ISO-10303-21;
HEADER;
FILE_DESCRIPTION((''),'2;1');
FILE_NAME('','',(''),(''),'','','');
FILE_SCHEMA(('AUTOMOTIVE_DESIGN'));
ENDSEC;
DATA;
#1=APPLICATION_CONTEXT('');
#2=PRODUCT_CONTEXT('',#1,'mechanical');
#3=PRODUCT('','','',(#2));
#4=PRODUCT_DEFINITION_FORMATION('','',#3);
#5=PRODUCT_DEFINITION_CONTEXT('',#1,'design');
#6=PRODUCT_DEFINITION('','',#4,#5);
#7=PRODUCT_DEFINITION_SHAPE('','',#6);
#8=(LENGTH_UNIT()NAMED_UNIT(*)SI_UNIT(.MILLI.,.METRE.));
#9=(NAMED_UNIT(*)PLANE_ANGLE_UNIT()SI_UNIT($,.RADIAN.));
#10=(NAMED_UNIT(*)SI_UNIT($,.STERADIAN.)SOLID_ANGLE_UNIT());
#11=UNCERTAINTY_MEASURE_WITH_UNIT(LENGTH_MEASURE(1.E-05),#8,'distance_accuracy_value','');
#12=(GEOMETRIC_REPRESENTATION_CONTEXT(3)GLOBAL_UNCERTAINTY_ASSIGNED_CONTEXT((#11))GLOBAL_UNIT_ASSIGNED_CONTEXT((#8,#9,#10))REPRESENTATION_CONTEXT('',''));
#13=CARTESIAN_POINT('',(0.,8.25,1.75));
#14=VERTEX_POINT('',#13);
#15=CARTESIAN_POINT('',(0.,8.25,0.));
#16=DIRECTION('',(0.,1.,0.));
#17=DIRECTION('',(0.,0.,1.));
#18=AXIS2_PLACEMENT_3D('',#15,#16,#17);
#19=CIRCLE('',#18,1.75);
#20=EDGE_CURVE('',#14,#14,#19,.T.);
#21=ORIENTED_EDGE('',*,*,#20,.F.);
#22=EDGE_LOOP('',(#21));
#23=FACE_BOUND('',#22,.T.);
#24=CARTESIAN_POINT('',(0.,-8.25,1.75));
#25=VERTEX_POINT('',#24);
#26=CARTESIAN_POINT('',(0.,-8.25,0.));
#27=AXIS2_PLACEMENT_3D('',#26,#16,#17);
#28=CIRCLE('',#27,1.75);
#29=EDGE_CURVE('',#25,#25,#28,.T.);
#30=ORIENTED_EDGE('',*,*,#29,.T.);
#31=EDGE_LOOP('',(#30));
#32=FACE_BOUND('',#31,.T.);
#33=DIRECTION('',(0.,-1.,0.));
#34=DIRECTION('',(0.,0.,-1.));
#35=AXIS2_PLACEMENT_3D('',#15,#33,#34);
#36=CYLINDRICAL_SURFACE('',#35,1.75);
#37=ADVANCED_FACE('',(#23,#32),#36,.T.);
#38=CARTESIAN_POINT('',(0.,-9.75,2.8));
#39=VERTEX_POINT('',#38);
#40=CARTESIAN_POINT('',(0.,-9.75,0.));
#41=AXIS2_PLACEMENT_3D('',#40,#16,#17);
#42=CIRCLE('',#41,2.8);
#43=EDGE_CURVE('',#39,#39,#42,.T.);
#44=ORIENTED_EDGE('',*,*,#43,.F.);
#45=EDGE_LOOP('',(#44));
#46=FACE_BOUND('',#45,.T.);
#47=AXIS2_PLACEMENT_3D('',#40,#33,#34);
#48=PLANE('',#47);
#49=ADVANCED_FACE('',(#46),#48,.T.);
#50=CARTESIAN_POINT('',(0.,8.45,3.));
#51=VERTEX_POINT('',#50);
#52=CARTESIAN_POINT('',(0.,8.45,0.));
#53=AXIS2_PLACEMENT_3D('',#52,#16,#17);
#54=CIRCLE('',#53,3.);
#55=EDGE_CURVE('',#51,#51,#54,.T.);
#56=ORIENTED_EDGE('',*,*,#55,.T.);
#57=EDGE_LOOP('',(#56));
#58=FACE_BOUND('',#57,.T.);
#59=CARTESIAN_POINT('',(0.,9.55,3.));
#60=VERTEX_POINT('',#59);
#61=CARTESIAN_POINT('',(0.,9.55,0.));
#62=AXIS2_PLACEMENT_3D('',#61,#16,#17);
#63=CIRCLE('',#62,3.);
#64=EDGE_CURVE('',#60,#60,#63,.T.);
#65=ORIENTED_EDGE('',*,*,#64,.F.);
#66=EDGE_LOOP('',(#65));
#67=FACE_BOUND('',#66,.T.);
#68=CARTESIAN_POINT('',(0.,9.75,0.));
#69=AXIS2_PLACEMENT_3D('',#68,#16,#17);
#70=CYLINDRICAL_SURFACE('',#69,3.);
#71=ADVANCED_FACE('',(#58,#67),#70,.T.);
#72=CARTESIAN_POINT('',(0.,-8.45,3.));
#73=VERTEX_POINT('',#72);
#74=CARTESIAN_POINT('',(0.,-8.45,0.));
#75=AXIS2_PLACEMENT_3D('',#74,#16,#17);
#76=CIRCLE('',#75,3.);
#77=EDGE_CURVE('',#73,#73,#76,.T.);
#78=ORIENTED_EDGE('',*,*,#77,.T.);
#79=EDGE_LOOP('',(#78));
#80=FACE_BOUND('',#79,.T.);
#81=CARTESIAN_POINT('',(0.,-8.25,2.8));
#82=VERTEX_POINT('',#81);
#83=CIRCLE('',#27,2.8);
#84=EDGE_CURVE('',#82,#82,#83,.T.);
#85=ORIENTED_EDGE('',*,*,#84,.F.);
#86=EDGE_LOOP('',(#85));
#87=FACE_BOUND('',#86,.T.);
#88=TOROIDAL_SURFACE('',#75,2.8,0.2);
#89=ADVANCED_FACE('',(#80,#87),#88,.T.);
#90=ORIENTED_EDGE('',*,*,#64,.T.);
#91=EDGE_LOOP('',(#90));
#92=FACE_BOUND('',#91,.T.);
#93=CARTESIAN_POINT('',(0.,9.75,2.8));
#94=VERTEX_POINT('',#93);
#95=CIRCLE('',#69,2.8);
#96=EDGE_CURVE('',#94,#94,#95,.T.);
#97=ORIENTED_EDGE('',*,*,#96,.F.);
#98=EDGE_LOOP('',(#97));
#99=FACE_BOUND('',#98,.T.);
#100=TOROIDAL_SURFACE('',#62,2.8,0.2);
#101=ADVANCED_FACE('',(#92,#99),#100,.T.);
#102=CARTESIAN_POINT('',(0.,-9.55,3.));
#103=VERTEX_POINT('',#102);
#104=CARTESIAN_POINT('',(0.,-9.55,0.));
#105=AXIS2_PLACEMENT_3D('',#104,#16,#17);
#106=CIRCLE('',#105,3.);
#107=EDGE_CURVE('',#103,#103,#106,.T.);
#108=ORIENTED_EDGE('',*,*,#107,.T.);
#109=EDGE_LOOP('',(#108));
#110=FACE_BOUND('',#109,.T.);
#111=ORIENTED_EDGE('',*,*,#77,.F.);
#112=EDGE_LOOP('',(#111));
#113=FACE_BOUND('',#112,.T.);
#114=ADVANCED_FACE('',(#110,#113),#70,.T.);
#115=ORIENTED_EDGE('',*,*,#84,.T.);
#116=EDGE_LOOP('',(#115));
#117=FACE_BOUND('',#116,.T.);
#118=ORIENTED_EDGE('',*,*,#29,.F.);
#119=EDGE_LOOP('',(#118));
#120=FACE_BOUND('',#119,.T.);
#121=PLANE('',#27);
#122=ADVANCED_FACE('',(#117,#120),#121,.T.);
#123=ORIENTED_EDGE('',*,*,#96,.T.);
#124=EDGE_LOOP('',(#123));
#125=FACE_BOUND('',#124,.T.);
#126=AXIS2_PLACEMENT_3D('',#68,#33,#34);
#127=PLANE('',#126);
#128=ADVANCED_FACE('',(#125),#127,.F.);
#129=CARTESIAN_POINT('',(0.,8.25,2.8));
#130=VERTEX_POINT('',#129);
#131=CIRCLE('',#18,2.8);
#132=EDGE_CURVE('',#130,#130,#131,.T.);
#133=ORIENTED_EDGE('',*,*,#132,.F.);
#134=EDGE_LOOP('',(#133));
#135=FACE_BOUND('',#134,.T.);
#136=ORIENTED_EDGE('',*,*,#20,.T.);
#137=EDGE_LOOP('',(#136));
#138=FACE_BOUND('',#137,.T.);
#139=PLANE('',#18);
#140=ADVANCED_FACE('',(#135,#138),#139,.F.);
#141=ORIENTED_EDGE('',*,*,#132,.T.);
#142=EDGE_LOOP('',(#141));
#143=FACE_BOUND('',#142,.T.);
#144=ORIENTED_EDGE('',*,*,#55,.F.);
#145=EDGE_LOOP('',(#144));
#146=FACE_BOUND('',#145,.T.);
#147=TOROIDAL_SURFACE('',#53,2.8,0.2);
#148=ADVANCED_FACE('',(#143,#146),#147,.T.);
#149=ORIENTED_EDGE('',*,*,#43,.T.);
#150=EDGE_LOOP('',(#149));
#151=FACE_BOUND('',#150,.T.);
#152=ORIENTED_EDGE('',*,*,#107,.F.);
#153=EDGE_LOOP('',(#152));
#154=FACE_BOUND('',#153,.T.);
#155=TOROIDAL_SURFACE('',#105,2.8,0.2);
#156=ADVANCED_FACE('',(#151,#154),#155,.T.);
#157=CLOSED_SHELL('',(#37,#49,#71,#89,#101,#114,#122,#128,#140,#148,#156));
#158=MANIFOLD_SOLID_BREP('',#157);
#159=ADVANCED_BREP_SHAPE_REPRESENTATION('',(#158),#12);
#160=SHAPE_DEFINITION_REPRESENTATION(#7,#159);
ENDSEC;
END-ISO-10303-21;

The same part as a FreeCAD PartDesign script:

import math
import FreeCAD as App
import Part
import Sketcher
from FreeCAD import Vector
Q = App.Units.Quantity

doc = App.newDocument("Part")
body = doc.addObject("PartDesign::Body", "Body")

sketch1 = doc.addObject("Sketcher::SketchObject", "Sketch")
body.addObject(sketch1)
sketch1.AttachmentSupport = (doc.XZ_Plane, [""])
sketch1.MapMode = "FlatFace"
sketch1.addGeometry(Part.Circle(Vector(0, 0, 0), Vector(0, 0, 1), 1.8), False)
sketch1.addConstraint([
    Sketcher.Constraint("Coincident", 0, 3, -1, 1),
    Sketcher.Constraint("Diameter", 0, Q("3.5 mm")),
])
pad1 = doc.addObject("PartDesign::Pad", "Pad")
body.addObject(pad1)
pad1.Profile = sketch1
pad1.Length = 16.5
pad1.Midplane = True

sketch2 = doc.addObject("Sketcher::SketchObject", "Sketch001")
body.addObject(sketch2)
sketch2.AttachmentSupport = (doc.XY_Plane, [""])
sketch2.MapMode = "FlatFace"
sketch2.addGeometry([
    Part.LineSegment(Vector(-2.8, 8.25, 0), Vector(0, 8.25, 0)),
    Part.LineSegment(Vector(0, 8.25, 0), Vector(0, 9.75, 0)),
    Part.LineSegment(Vector(0, 9.75, 0), Vector(-2.8, 9.75, 0)),
    Part.ArcOfCircle(Part.Circle(Vector(-2.8, 9.55, 0), Vector(0, 0, 1), 0.2), math.radians(90), math.radians(180)),
    Part.LineSegment(Vector(-3, 9.55, 0), Vector(-3, 8.45, 0)),
    Part.ArcOfCircle(Part.Circle(Vector(-2.8, 8.45, 0), Vector(0, 0, 1), 0.2), math.radians(-180), math.radians(-90)),
    Part.LineSegment(Vector(0, -9.75, 0), Vector(0, -8.25, 0)),
    Part.LineSegment(Vector(0, -8.25, 0), Vector(-2.8, -8.25, 0)),
    Part.ArcOfCircle(Part.Circle(Vector(-2.8, -8.45, 0), Vector(0, 0, 1), 0.2), math.radians(90), math.radians(180)),
    Part.LineSegment(Vector(-3, -8.45, 0), Vector(-3, -9.55, 0)),
    Part.ArcOfCircle(Part.Circle(Vector(-2.8, -9.55, 0), Vector(0, 0, 1), 0.2), math.radians(-180), math.radians(-90)),
    Part.LineSegment(Vector(-2.8, -9.75, 0), Vector(0, -9.75, 0)),
], False)
sketch2.addConstraint([
    Sketcher.Constraint("Coincident", 0, 2, 1, 1),
    Sketcher.Constraint("Coincident", 1, 2, 2, 1),
    Sketcher.Constraint("Tangent", 2, 2, 3, 1),
    Sketcher.Constraint("Tangent", 3, 2, 4, 1),
    Sketcher.Constraint("Tangent", 4, 2, 5, 1),
    Sketcher.Constraint("Tangent", 5, 2, 0, 1),
    Sketcher.Constraint("Coincident", 6, 2, 7, 1),
    Sketcher.Constraint("Tangent", 7, 2, 8, 1),
    Sketcher.Constraint("Tangent", 8, 2, 9, 1),
    Sketcher.Constraint("Tangent", 9, 2, 10, 1),
    Sketcher.Constraint("Tangent", 10, 2, 11, 1),
    Sketcher.Constraint("Coincident", 11, 2, 6, 1),
    Sketcher.Constraint("Horizontal", 0),
    Sketcher.Constraint("Vertical", 1),
    Sketcher.Constraint("Horizontal", 2),
    Sketcher.Constraint("Vertical", 4),
    Sketcher.Constraint("Vertical", 6),
    Sketcher.Constraint("Horizontal", 7),
    Sketcher.Constraint("Vertical", 9),
    Sketcher.Constraint("Horizontal", 11),
    Sketcher.Constraint("Equal", 3, 5),
    Sketcher.Constraint("Equal", 5, 8),
    Sketcher.Constraint("Equal", 8, 10),
    Sketcher.Constraint("Symmetric", 0, 2, 6, 2, -1, 1),
    Sketcher.Constraint("Symmetric", 3, 3, 10, 3, -1),
    Sketcher.Constraint("PointOnObject", 0, 2, -2),
    Sketcher.Constraint("Radius", 3, Q("0.2 mm")),
    Sketcher.Constraint("DistanceX", 0, 1, 0, 2, Q("2.8 mm")),
    Sketcher.Constraint("DistanceY", 1, 1, 1, 2, Q("1.5 mm")),
    Sketcher.Constraint("DistanceY", 8, 3, 3, 3, Q("18 mm")),
])
revolution = doc.addObject("PartDesign::Revolution", "Revolution")
body.addObject(revolution)
revolution.Profile = sketch2
revolution.ReferenceAxis = (sketch2, ["V_Axis"])
revolution.Angle = 360

doc.recompute()
